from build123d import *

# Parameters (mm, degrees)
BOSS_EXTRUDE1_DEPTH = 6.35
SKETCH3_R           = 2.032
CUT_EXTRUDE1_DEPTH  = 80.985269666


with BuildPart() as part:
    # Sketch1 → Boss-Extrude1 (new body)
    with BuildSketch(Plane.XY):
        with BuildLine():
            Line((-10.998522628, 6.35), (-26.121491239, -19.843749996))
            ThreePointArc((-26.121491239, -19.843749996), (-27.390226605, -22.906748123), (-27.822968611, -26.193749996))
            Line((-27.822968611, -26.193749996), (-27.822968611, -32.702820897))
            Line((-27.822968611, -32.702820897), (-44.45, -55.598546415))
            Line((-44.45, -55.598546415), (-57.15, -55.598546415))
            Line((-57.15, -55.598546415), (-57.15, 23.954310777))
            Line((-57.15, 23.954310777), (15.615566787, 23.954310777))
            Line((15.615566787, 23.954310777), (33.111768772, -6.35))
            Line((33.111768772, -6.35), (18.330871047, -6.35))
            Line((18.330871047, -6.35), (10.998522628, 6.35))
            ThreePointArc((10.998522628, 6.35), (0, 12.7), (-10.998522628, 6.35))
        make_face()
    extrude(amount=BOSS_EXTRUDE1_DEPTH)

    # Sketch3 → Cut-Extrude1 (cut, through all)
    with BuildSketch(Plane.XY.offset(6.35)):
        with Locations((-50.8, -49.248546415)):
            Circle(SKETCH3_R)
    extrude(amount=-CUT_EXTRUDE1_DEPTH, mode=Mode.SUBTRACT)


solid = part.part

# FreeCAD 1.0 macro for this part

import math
import FreeCAD as App
import Part
import Sketcher
from FreeCAD import Vector
Q = App.Units.Quantity

doc = App.newDocument("Part")
body = doc.addObject("PartDesign::Body", "Body")

# Sketch on XY plane
sketch1 = doc.addObject("Sketcher::SketchObject", "Sketch")
body.addObject(sketch1)
sketch1.AttachmentSupport = (doc.XY_Plane, [""])
sketch1.MapMode = "FlatFace"
sketch1.addGeometry([
    Part.LineSegment(Vector(-26, -20, 0), Vector(-11, 6, 0)),  # 0
    Part.ArcOfCircle(Part.Circle(Vector(0, 0, 0), Vector(0, 0, 1), 13), math.radians(30), math.radians(150)),  # 1
    Part.LineSegment(Vector(11, 6, 0), Vector(18, -6, 0)),  # 2
    Part.LineSegment(Vector(18, -6, 0), Vector(33, -6, 0)),  # 3
    Part.LineSegment(Vector(33, -6, 0), Vector(16, 24, 0)),  # 4
    Part.LineSegment(Vector(16, 24, 0), Vector(-57, 24, 0)),  # 5
    Part.LineSegment(Vector(-57, 24, 0), Vector(-57, -56, 0)),  # 6
    Part.LineSegment(Vector(-57, -56, 0), Vector(-44, -56, 0)),  # 7
    Part.LineSegment(Vector(-44, -56, 0), Vector(-28, -33, 0)),  # 8
    Part.LineSegment(Vector(-28, -33, 0), Vector(-28, -26, 0)),  # 9
    Part.ArcOfCircle(Part.Circle(Vector(-15, -26, 0), Vector(0, 0, 1), 13), math.radians(150), math.radians(180)),  # 10
], False)
sketch1.addConstraint([
    Sketcher.Constraint("Tangent", 0, 2, 1, 2),
    Sketcher.Constraint("Tangent", 1, 1, 2, 1),
    Sketcher.Constraint("Coincident", 2, 2, 3, 1),
    Sketcher.Constraint("Coincident", 3, 2, 4, 1),
    Sketcher.Constraint("Coincident", 4, 2, 5, 1),
    Sketcher.Constraint("Coincident", 5, 2, 6, 1),
    Sketcher.Constraint("Coincident", 6, 2, 7, 1),
    Sketcher.Constraint("Coincident", 7, 2, 8, 1),
    Sketcher.Constraint("Coincident", 8, 2, 9, 1),
    Sketcher.Constraint("Tangent", 9, 2, 10, 2),
    Sketcher.Constraint("Tangent", 10, 1, 0, 1),
    Sketcher.Constraint("Horizontal", 3),
    Sketcher.Constraint("Horizontal", 5),
    Sketcher.Constraint("Vertical", 6),
    Sketcher.Constraint("Horizontal", 7),
    Sketcher.Constraint("Vertical", 9),
    Sketcher.Constraint("Coincident", 1, 3, -1, 1),
    Sketcher.Constraint("Equal", 1, 10),
    Sketcher.Constraint("Parallel", 2, 4),
    Sketcher.Constraint("Horizontal", 0, 2, 1, 1),
    Sketcher.Constraint("Radius", 1, Q("0.5 in")),
    Sketcher.Constraint("DistanceX", 7, 1, 7, 2, Q("0.5 in")),
    Sketcher.Constraint("Angle", 0, Q("60 deg")),
    Sketcher.Constraint("DistanceY", 2, 2, 1, 1, Q("0.5 in")),
    Sketcher.Constraint("DistanceX", 5, 2, -1, 1, Q("2.25 in")),
    Sketcher.Constraint("DistanceY", 10, 3, -1, 1, Q("1.03125 in")),
    Sketcher.Constraint("DistanceY", 9, 1, 9, 2, 6.509071),
    Sketcher.Constraint("DistanceX", 4, 2, 3, 2, 17.496202),
    Sketcher.Constraint("DistanceX", 3, 1, 3, 2, 14.780898),
    Sketcher.Constraint("DistanceY", 6, 2, 6, 1, 79.552857),
])
pad1 = doc.addObject("PartDesign::Pad", "Pad")
body.addObject(pad1)
pad1.Profile = sketch1
pad1.Length = Q("0.25 in")

# Sketch on XY plane
sketch2 = doc.addObject("Sketcher::SketchObject", "Sketch001")
body.addObject(sketch2)
sketch2.AttachmentSupport = (doc.XY_Plane, [""])
sketch2.MapMode = "FlatFace"
sketch2.AttachmentOffset = App.Placement(Vector(0, 0, 0.25 * 25.4), App.Rotation())
sketch2.addGeometry(Part.Circle(Vector(-50.8, -49.2, 0), Vector(0, 0, 1), 2), False)
sketch2.addConstraint([
    Sketcher.Constraint("Diameter", 0, Q("0.16 in")),
    Sketcher.Constraint("DistanceX", 0, 3, -1, 1, Q("2 in")),
    Sketcher.Constraint("DistanceY", 0, 3, -1, 1, 49.248546),
])
pocket1 = doc.addObject("PartDesign::Pocket", "Pocket")
body.addObject(pocket1)
pocket1.Profile = sketch2
pocket1.Type = "ThroughAll"

doc.recompute()
